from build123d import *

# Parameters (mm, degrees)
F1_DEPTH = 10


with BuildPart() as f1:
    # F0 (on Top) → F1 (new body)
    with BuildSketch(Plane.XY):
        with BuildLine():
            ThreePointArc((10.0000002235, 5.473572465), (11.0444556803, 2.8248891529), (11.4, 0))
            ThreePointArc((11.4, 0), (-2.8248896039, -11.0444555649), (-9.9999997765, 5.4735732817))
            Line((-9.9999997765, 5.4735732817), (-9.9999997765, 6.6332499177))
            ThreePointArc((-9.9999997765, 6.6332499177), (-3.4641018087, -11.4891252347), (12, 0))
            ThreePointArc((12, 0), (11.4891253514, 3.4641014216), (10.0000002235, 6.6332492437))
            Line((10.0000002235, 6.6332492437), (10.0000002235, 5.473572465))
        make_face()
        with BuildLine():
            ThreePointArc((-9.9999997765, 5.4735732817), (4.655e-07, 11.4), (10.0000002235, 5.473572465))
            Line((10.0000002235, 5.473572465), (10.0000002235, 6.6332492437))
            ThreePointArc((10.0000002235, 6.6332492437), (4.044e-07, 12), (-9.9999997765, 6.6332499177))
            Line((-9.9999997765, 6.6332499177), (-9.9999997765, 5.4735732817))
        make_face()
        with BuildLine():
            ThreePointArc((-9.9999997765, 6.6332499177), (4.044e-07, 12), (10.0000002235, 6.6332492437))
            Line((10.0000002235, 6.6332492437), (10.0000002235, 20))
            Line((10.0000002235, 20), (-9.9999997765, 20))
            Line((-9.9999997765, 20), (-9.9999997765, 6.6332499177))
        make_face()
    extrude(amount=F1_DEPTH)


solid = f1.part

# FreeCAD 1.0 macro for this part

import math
import FreeCAD as App
import Part
import Sketcher

V = App.Vector
Q = App.Units.Quantity

doc = App.newDocument("Part")
params = doc.addObject("Spreadsheet::Sheet", "Params")
for row, (alias, value) in enumerate([
    ("sketch1_radius", "12 mm"),
    ("sketch1_radius2", "11.4 mm"),
    ("sketch1_width", "20 mm"),
    ("pad1_length", "10 mm"),
], start=1):
    params.set(f"A{row}", alias)
    params.set(f"B{row}", "=" + value)
    params.setAlias(f"B{row}", alias)

body = doc.addObject("PartDesign::Body", "Body")

# Sketch on XY plane
sketch1 = body.newObject("Sketcher::SketchObject", "Sketch")
sketch1.AttachmentSupport = (doc.getObject("XY_Plane"), [""])
sketch1.MapMode = "FlatFace"
sketch1.addGeometry([
    Part.ArcOfCircle(Part.Circle(V(0, 0, 0), V(0, 0, 1), 12), math.radians(146), math.radians(360)),  # 0
    Part.ArcOfCircle(Part.Circle(V(0, 0, 0), V(0, 0, 1), 12), math.radians(0), math.radians(34)),  # 1
    Part.LineSegment(V(10, 7, 0), V(10, 20, 0)),  # 2
    Part.LineSegment(V(10, 20, 0), V(-10, 20, 0)),  # 3
    Part.LineSegment(V(-10, 20, 0), V(-10, 7, 0)),  # 4
    Part.ArcOfCircle(Part.Circle(V(0, 0, 0), V(0, 0, 1), 11), math.radians(0), math.radians(29)),  # 5
    Part.ArcOfCircle(Part.Circle(V(0, 0, 0), V(0, 0, 1), 11), math.radians(151), math.radians(360)),  # 6
    Part.ArcOfCircle(Part.Circle(V(0, 0, 0), V(0, 0, 1), 11), math.radians(29), math.radians(151)),  # 7
], False)
sketch1.addConstraint([
    Sketcher.Constraint("Tangent", 0, 2, 1, 1),
    Sketcher.Constraint("Coincident", 1, 2, 2, 1),
    Sketcher.Constraint("Coincident", 2, 2, 3, 1),
    Sketcher.Constraint("Coincident", 3, 2, 4, 1),
    Sketcher.Constraint("Coincident", 4, 2, 0, 1),
    Sketcher.Constraint("Tangent", 5, 1, 6, 2),
    Sketcher.Constraint("Tangent", 6, 1, 7, 2),
    Sketcher.Constraint("Tangent", 7, 1, 5, 2),
    Sketcher.Constraint("Vertical", 2),
    Sketcher.Constraint("Horizontal", 3),
    Sketcher.Constraint("Vertical", 4),
    Sketcher.Constraint("Coincident", 0, 3, -1, 1),
    Sketcher.Constraint("Coincident", 5, 3, -1, 1),
    Sketcher.Constraint("Equal", 0, 1),
    Sketcher.Constraint("PointOnObject", 0, 2, -1),
    Sketcher.Constraint("PointOnObject", 5, 1, -1),
    Sketcher.Constraint("Horizontal", 1, 2, 4, 2),
    Sketcher.Constraint("Horizontal", 6, 1, 7, 1),
    Sketcher.Constraint("Vertical", 4, 2, 6, 1),
    Sketcher.Constraint("Radius", 0, Q("12 mm")),
    Sketcher.Constraint("Radius", 5, Q("11.4 mm")),
    Sketcher.Constraint("DistanceX", 3, 2, 3, 1, Q("20 mm")),
    Sketcher.Constraint("DistanceY", -1, 1, 2, 2, Q("20 mm")),
])
sketch1.setExpression("Constraints[19]", "Params.sketch1_radius")
sketch1.setExpression("Constraints[20]", "Params.sketch1_radius2")
sketch1.setExpression("Constraints[21]", "Params.sketch1_width")
pad1 = body.newObject("PartDesign::Pad", "Pad")
pad1.Profile = sketch1
pad1.setExpression("Length", "Params.pad1_length")

doc.recompute()
